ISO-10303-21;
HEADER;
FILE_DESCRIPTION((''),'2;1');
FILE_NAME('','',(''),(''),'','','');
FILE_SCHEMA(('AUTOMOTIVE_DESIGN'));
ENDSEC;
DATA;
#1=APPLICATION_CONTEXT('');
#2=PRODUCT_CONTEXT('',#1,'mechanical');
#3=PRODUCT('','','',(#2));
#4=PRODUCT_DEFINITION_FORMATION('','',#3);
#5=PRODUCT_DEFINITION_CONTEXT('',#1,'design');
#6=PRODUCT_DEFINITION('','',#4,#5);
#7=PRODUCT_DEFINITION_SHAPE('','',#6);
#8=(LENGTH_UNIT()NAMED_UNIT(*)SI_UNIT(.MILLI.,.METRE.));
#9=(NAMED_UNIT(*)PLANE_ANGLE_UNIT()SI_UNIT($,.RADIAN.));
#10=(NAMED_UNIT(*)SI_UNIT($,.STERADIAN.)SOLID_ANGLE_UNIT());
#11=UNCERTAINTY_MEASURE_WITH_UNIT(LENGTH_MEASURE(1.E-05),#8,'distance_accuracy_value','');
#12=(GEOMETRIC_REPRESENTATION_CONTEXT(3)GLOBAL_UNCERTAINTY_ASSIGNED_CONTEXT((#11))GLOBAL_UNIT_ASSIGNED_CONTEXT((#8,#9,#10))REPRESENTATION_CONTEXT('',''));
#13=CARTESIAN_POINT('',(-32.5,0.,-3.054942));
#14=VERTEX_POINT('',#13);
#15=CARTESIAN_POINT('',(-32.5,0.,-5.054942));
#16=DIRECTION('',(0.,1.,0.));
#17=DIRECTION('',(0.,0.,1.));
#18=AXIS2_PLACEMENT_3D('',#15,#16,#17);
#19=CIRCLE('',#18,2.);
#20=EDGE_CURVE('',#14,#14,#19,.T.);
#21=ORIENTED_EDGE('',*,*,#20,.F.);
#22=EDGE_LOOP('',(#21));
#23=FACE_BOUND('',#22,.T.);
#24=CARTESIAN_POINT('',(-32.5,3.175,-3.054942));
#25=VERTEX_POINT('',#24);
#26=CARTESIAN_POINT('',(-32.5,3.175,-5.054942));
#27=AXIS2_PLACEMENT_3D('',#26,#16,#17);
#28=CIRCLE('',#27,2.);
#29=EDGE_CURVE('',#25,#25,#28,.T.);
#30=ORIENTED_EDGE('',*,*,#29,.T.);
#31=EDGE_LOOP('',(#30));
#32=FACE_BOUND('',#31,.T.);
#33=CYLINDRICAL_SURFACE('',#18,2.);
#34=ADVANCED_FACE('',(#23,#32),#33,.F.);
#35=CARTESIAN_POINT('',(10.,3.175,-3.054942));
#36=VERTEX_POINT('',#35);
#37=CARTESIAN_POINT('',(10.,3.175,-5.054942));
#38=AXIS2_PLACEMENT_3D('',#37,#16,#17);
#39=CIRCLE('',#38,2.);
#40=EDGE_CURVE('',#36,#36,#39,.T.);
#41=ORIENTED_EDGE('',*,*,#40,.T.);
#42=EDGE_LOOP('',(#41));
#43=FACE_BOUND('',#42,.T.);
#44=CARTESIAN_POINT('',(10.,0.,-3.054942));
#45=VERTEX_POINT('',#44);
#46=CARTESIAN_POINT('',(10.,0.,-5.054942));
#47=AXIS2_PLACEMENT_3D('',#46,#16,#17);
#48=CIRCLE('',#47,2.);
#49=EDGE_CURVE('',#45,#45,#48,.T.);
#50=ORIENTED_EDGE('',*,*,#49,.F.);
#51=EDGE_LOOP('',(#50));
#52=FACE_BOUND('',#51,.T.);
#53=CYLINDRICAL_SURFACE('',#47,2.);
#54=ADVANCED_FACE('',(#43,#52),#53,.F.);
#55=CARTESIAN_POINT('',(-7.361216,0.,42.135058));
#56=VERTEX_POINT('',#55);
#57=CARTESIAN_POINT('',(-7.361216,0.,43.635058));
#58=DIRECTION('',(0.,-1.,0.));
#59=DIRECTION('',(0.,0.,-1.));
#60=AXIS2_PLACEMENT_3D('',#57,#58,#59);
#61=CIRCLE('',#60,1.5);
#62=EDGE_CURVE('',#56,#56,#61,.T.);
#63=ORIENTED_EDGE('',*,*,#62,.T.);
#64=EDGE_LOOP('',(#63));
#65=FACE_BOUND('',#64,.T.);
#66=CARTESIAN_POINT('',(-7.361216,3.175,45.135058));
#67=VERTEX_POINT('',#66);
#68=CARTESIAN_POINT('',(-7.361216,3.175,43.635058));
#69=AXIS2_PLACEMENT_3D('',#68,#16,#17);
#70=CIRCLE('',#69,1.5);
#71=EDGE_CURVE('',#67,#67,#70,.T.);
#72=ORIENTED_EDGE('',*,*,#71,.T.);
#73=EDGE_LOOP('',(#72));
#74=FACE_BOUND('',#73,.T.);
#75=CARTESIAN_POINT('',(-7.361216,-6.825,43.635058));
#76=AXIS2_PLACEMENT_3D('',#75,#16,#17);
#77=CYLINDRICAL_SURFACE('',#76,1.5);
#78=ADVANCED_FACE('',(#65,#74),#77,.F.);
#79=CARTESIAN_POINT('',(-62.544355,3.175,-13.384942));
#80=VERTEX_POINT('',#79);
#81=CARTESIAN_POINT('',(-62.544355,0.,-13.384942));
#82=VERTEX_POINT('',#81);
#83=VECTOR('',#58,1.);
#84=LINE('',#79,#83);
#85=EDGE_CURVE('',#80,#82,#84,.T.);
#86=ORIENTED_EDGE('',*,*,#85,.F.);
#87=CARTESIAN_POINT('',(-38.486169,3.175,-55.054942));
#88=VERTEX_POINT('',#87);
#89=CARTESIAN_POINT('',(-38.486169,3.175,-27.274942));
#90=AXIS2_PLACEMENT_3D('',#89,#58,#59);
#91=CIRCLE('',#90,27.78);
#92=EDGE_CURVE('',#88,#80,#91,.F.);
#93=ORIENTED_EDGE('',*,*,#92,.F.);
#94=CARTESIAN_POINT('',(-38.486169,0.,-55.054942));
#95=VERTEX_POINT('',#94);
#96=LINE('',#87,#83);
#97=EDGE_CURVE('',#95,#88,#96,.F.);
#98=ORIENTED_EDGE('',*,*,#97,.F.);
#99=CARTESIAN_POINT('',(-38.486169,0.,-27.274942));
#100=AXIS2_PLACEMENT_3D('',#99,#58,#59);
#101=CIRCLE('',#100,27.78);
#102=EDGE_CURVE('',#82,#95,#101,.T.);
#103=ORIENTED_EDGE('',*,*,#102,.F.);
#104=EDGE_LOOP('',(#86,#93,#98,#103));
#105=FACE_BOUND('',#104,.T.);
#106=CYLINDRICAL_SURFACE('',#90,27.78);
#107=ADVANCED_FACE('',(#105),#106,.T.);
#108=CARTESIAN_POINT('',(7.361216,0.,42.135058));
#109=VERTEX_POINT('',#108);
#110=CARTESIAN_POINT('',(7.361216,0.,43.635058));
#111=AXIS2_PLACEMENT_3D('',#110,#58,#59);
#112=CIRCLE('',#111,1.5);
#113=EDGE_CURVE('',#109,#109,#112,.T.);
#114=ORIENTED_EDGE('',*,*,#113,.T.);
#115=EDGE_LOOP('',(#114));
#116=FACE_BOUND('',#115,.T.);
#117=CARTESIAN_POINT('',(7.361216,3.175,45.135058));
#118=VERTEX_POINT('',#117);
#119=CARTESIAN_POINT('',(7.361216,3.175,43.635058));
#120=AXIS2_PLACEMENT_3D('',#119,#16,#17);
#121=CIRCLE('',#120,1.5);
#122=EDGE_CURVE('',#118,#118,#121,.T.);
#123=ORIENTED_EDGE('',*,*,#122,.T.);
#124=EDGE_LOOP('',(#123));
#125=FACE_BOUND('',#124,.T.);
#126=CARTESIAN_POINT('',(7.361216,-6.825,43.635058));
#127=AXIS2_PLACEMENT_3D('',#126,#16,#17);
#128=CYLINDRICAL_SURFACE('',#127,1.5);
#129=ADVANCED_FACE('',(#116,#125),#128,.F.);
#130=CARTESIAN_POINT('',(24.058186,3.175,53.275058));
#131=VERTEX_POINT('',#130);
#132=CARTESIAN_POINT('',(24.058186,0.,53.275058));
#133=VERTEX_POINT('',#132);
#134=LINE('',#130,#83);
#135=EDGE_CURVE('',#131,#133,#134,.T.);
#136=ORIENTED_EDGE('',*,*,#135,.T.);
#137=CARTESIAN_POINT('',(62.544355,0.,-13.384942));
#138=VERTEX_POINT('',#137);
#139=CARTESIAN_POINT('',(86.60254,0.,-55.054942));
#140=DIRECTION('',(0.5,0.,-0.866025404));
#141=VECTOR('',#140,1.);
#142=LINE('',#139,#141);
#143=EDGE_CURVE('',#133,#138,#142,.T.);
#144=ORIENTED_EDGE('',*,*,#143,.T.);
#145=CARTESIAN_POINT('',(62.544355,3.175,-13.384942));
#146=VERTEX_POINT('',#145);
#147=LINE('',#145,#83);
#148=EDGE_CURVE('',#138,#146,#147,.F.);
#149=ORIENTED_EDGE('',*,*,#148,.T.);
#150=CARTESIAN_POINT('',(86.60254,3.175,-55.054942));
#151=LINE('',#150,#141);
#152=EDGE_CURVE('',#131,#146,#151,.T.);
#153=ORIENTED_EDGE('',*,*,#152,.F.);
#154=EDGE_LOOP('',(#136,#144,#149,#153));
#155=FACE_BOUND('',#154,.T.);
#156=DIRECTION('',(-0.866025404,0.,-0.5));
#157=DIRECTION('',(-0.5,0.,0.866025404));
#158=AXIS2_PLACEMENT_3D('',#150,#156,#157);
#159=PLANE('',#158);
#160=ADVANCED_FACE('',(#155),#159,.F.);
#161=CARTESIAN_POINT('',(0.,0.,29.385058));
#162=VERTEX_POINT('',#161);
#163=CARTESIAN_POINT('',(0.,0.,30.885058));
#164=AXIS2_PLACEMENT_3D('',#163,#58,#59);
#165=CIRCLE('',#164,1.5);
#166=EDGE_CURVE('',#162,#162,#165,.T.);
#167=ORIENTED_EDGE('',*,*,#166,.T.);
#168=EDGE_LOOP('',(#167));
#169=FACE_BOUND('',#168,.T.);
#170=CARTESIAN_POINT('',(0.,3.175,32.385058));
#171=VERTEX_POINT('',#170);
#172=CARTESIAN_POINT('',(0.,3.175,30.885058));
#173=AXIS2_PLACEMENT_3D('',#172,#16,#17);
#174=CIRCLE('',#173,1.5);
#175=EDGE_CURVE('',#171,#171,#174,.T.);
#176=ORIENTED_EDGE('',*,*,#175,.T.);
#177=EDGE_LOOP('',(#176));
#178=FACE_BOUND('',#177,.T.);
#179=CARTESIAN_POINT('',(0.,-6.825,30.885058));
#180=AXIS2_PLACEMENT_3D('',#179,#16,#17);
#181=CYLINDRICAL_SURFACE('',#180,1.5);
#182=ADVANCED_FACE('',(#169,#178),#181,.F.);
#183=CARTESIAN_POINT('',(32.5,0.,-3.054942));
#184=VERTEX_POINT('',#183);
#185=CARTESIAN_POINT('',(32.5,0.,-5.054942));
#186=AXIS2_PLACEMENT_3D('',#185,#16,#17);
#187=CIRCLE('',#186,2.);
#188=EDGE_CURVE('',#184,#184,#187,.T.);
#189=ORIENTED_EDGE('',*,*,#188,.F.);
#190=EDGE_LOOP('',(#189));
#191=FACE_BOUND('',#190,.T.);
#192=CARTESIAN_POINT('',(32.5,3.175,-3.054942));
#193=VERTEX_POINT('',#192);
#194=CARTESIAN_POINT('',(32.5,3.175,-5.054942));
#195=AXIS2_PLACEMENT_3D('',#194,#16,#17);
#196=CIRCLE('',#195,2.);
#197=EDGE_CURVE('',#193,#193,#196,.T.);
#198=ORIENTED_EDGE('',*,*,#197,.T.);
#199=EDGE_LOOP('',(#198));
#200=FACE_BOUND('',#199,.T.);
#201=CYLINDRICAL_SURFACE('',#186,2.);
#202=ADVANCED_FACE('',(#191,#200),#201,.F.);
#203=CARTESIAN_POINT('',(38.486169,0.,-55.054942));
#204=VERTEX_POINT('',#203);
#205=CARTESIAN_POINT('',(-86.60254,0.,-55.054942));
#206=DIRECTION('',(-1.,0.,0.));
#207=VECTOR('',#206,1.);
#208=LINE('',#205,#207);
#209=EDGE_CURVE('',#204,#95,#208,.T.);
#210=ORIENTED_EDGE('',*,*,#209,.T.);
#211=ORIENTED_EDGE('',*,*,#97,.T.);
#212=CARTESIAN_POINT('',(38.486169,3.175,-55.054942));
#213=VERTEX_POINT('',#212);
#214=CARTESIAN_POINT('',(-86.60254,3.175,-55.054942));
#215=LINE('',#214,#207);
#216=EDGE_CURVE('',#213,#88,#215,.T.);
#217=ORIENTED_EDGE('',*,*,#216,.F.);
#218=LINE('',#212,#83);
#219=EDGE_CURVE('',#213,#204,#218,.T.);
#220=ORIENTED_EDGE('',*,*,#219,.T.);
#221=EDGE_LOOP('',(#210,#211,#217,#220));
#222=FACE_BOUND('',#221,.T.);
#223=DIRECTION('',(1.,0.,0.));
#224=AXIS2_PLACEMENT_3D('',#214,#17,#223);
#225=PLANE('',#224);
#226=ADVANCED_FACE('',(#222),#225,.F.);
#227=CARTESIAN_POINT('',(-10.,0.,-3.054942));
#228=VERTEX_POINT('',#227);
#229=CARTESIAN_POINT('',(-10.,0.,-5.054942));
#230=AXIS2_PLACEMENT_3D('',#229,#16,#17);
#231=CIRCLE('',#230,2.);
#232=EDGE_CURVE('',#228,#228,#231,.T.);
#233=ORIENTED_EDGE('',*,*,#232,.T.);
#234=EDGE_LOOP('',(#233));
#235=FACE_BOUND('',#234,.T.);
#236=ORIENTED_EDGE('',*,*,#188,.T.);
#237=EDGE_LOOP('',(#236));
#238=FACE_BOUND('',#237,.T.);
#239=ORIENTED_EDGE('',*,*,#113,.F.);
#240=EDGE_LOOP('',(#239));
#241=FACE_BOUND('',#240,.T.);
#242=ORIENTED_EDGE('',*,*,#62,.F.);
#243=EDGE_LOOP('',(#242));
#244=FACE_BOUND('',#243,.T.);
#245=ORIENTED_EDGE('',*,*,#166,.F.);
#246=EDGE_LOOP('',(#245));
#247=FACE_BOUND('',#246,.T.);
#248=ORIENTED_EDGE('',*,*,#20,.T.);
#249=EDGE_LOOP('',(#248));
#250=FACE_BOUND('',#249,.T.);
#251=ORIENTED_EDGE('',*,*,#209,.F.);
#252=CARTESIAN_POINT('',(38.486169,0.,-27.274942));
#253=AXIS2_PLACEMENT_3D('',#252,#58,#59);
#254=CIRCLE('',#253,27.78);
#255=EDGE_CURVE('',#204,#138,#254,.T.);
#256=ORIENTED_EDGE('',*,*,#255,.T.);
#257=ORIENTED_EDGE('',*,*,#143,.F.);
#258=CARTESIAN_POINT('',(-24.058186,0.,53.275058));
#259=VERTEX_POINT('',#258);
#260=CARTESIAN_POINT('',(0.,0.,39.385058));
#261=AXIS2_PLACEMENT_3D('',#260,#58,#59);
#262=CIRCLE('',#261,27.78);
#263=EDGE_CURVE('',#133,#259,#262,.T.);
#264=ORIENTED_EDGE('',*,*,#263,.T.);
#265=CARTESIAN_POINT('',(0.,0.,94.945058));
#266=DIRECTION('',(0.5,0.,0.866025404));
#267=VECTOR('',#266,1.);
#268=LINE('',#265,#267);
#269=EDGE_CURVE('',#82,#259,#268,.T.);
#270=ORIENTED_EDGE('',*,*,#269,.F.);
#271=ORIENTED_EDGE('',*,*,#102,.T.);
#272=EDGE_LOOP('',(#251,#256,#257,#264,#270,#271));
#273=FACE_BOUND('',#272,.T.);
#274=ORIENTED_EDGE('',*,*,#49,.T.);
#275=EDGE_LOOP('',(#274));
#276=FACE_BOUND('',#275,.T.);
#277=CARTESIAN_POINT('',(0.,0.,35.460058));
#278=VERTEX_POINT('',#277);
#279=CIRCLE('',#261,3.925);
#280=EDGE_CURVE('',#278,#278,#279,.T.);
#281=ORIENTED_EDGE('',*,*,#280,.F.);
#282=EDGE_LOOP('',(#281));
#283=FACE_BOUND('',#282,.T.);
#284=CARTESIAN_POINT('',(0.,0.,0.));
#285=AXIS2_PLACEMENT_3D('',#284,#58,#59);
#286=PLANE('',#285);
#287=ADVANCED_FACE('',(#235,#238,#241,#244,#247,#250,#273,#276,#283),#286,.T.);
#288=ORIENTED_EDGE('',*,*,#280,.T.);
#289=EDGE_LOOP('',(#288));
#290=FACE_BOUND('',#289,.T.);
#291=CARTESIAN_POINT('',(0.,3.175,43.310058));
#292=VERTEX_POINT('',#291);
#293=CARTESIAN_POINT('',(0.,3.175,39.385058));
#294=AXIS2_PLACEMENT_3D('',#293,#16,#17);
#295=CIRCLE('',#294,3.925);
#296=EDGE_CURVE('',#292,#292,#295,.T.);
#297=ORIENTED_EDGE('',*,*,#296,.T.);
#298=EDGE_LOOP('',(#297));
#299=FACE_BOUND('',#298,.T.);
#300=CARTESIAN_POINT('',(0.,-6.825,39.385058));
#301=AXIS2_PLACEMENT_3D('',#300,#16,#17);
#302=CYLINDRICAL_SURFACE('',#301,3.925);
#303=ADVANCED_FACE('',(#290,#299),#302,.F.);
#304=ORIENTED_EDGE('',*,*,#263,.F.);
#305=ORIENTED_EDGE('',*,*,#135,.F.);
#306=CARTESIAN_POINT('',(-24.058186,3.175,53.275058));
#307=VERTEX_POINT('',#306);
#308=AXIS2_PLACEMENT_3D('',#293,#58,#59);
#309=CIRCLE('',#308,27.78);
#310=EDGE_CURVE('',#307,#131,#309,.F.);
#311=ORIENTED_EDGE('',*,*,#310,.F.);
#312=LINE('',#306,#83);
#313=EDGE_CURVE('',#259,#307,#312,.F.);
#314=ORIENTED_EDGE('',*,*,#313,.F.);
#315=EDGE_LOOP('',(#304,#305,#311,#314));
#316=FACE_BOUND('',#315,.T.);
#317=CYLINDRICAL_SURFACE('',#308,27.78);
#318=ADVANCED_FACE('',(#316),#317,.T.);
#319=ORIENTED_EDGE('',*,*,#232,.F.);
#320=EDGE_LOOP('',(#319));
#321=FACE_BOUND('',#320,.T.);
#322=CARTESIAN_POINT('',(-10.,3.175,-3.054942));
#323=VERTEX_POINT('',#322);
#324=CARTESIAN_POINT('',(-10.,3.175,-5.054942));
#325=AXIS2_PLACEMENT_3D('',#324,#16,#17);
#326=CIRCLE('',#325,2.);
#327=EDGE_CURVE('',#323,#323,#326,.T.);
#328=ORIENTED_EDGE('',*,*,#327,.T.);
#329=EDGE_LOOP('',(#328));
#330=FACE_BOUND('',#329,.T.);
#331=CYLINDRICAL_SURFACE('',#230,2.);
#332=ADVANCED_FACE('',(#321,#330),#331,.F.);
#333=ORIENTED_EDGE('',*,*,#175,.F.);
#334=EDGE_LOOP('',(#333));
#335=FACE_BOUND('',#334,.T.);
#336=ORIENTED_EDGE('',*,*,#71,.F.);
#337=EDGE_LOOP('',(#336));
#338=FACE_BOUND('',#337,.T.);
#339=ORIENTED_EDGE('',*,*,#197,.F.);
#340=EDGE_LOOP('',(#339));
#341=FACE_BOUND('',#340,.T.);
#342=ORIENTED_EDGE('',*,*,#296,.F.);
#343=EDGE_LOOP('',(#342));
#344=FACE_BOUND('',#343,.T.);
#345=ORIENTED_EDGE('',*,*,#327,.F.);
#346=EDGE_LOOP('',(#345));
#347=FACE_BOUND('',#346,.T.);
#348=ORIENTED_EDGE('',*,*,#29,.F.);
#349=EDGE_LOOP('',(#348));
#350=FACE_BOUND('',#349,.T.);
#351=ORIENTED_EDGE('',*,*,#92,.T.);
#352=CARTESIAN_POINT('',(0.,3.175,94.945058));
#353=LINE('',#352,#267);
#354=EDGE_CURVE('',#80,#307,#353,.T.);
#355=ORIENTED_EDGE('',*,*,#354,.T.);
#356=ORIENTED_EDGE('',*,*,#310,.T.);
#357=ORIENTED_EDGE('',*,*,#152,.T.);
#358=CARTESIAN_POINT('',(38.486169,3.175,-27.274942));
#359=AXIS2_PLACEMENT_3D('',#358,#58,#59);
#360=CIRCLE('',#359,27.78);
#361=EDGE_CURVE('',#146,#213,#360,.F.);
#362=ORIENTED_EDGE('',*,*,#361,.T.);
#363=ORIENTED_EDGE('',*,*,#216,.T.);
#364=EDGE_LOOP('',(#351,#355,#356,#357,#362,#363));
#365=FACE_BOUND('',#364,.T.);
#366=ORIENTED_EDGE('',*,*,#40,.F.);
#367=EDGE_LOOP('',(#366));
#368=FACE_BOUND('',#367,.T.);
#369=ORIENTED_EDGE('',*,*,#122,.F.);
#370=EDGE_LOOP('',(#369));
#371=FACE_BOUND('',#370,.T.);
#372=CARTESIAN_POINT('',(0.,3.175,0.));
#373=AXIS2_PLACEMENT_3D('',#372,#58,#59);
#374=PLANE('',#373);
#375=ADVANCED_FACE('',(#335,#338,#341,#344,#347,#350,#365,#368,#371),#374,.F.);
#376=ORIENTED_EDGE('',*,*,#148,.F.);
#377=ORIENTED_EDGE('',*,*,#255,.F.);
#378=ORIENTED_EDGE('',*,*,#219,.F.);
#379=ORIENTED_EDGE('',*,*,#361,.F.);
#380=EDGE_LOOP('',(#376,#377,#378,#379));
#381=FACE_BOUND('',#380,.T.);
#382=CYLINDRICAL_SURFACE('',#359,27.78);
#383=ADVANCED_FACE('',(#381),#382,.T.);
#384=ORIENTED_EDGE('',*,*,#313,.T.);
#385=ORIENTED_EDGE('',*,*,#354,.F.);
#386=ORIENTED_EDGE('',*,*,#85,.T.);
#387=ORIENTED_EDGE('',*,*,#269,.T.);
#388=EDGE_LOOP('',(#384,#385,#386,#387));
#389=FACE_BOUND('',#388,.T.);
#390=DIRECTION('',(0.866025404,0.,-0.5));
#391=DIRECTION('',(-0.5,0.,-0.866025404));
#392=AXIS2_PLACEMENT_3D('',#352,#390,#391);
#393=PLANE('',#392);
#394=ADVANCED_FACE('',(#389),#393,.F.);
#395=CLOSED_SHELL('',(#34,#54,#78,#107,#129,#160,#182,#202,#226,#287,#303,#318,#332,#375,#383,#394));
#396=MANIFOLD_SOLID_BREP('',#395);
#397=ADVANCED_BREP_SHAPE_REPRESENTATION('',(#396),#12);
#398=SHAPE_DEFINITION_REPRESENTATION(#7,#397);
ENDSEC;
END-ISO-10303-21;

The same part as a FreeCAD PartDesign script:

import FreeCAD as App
import Part
import Sketcher
from FreeCAD import Vector
Q = App.Units.Quantity


def edges_at(feature, points):
    """Names of the edges that pass closest to the given points."""
    edges = feature.Shape.Edges
    near = lambda p: min(range(len(edges)), key=lambda i: edges[i].distToShape(Part.Vertex(*p))[0])
    return sorted({f"Edge{near(p) + 1}" for p in points})

doc = App.newDocument("Part")
body = doc.addObject("PartDesign::Body", "Body")

# Sketch on XZ plane
sketch1 = doc.addObject("Sketcher::SketchObject", "Sketch")
body.addObject(sketch1)
sketch1.AttachmentSupport = (doc.XZ_Plane, [""])
sketch1.MapMode = "FlatFace"
sketch1.addGeometry([
    Part.LineSegment(Vector(-87, -55, 0), Vector(0, 95, 0)),
    Part.LineSegment(Vector(0, 95, 0), Vector(87, -55, 0)),
    Part.LineSegment(Vector(87, -55, 0), Vector(-87, -55, 0)),
], False)
sketch1.addConstraint([
    Sketcher.Constraint("Coincident", 0, 2, 1, 1),
    Sketcher.Constraint("Coincident", 1, 2, 2, 1),
    Sketcher.Constraint("Coincident", 2, 2, 0, 1),
    Sketcher.Constraint("Horizontal", 2),
    Sketcher.Constraint("PointOnObject", 0, 2, -2),
    Sketcher.Constraint("Equal", 0, 1),
    Sketcher.Constraint("Angle", 0, Q("60 deg")),
    Sketcher.Constraint("DistanceY", 1, 2, 0, 2, Q("150 mm")),
    Sketcher.Constraint("DistanceY", -1, 1, 0, 2, Q("94.945058 mm")),
])
pad1 = doc.addObject("PartDesign::Pad", "Pad")
body.addObject(pad1)
pad1.Profile = sketch1
pad1.Length = 3.175
pad1.Reversed = True
doc.recompute()

fillet = doc.addObject("PartDesign::Fillet", "Fillet")
body.addObject(fillet)
fillet.Base = (pad1, edges_at(pad1, [(0, 1.587, 94.945), (-86.603, 1.587, -55.055), (86.603, 1.587, -55.055)]))
fillet.Radius = 27.78

# Sketch on XZ plane
sketch2 = doc.addObject("Sketcher::SketchObject", "Sketch001")
body.addObject(sketch2)
sketch2.AttachmentSupport = (doc.XZ_Plane, [""])
sketch2.MapMode = "FlatFace"
sketch2.AttachmentOffset = App.Placement(Vector(0, 0, -3.175), App.Rotation())
sketch2.addGeometry([
    Part.Circle(Vector(32.5, -5.1, 0), Vector(0, 0, 1), 2),
    Part.Circle(Vector(-32.5, -5.1, 0), Vector(0, 0, 1), 2),
    Part.Circle(Vector(-10, -5.1, 0), Vector(0, 0, 1), 2),
    Part.Circle(Vector(10, -5.1, 0), Vector(0, 0, 1), 2),
], False)
sketch2.addConstraint([
    Sketcher.Constraint("Equal", 0, 1),
    Sketcher.Constraint("Equal", 1, 2),
    Sketcher.Constraint("Equal", 2, 3),
    Sketcher.Constraint("Symmetric", 0, 3, 1, 3, -2),
    Sketcher.Constraint("Symmetric", 2, 3, 3, 3, -2),
    Sketcher.Constraint("Horizontal", 1, 3, 2, 3),
    Sketcher.Constraint("Diameter", 0, Q("4 mm")),
    Sketcher.Constraint("DistanceX", 2, 3, -1, 1, Q("10 mm")),
    Sketcher.Constraint("DistanceX", 1, 3, 0, 3, Q("65 mm")),
    Sketcher.Constraint("DistanceY", 0, 3, -1, 1, Q("5.054942 mm")),
])
pocket1 = doc.addObject("PartDesign::Pocket", "Pocket")
body.addObject(pocket1)
pocket1.Profile = sketch2
pocket1.Type = "ThroughAll"
pocket1.Reversed = True

# Sketch on XZ plane
sketch3 = doc.addObject("Sketcher::SketchObject", "Sketch002")
body.addObject(sketch3)
sketch3.AttachmentSupport = (doc.XZ_Plane, [""])
sketch3.MapMode = "FlatFace"
sketch3.AttachmentOffset = App.Placement(Vector(0, 0, -3.175), App.Rotation())
sketch3.addGeometry([
    Part.Circle(Vector(0, 30.9, 0), Vector(0, 0, 1), 1.5),
    Part.Circle(Vector(-7.4, 43.6, 0), Vector(0, 0, 1), 1.5),
    Part.Circle(Vector(0, 39.4, 0), Vector(0, 0, 1), 3.9),
    Part.Circle(Vector(7.4, 43.6, 0), Vector(0, 0, 1), 1.5),
], False)
sketch3.addConstraint([
    Sketcher.Constraint("Equal", 0, 1),
    Sketcher.Constraint("Equal", 1, 3),
    Sketcher.Constraint("Symmetric", 1, 3, 3, 3, -2),
    Sketcher.Constraint("PointOnObject", 0, 3, -2),
    Sketcher.Constraint("PointOnObject", 2, 3, -2),
    Sketcher.Constraint("Diameter", 0, Q("3 mm")),
    Sketcher.Constraint("Diameter", 2, Q("7.85 mm")),
    Sketcher.Constraint("DistanceY", 0, 3, 2, 3, Q("8.5 mm")),
    Sketcher.Constraint("DistanceY", 0, 3, 1, 3, Q("12.75 mm")),
    Sketcher.Constraint("DistanceY", -1, 1, 0, 3, Q("30.885058 mm")),
    Sketcher.Constraint("DistanceX", 1, 3, 3, 3, Q("14.722432 mm")),
])
pocket2 = doc.addObject("PartDesign::Pocket", "Pocket001")
body.addObject(pocket2)
pocket2.Profile = sketch3
pocket2.Length = 10
pocket2.Reversed = True

doc.recompute()
